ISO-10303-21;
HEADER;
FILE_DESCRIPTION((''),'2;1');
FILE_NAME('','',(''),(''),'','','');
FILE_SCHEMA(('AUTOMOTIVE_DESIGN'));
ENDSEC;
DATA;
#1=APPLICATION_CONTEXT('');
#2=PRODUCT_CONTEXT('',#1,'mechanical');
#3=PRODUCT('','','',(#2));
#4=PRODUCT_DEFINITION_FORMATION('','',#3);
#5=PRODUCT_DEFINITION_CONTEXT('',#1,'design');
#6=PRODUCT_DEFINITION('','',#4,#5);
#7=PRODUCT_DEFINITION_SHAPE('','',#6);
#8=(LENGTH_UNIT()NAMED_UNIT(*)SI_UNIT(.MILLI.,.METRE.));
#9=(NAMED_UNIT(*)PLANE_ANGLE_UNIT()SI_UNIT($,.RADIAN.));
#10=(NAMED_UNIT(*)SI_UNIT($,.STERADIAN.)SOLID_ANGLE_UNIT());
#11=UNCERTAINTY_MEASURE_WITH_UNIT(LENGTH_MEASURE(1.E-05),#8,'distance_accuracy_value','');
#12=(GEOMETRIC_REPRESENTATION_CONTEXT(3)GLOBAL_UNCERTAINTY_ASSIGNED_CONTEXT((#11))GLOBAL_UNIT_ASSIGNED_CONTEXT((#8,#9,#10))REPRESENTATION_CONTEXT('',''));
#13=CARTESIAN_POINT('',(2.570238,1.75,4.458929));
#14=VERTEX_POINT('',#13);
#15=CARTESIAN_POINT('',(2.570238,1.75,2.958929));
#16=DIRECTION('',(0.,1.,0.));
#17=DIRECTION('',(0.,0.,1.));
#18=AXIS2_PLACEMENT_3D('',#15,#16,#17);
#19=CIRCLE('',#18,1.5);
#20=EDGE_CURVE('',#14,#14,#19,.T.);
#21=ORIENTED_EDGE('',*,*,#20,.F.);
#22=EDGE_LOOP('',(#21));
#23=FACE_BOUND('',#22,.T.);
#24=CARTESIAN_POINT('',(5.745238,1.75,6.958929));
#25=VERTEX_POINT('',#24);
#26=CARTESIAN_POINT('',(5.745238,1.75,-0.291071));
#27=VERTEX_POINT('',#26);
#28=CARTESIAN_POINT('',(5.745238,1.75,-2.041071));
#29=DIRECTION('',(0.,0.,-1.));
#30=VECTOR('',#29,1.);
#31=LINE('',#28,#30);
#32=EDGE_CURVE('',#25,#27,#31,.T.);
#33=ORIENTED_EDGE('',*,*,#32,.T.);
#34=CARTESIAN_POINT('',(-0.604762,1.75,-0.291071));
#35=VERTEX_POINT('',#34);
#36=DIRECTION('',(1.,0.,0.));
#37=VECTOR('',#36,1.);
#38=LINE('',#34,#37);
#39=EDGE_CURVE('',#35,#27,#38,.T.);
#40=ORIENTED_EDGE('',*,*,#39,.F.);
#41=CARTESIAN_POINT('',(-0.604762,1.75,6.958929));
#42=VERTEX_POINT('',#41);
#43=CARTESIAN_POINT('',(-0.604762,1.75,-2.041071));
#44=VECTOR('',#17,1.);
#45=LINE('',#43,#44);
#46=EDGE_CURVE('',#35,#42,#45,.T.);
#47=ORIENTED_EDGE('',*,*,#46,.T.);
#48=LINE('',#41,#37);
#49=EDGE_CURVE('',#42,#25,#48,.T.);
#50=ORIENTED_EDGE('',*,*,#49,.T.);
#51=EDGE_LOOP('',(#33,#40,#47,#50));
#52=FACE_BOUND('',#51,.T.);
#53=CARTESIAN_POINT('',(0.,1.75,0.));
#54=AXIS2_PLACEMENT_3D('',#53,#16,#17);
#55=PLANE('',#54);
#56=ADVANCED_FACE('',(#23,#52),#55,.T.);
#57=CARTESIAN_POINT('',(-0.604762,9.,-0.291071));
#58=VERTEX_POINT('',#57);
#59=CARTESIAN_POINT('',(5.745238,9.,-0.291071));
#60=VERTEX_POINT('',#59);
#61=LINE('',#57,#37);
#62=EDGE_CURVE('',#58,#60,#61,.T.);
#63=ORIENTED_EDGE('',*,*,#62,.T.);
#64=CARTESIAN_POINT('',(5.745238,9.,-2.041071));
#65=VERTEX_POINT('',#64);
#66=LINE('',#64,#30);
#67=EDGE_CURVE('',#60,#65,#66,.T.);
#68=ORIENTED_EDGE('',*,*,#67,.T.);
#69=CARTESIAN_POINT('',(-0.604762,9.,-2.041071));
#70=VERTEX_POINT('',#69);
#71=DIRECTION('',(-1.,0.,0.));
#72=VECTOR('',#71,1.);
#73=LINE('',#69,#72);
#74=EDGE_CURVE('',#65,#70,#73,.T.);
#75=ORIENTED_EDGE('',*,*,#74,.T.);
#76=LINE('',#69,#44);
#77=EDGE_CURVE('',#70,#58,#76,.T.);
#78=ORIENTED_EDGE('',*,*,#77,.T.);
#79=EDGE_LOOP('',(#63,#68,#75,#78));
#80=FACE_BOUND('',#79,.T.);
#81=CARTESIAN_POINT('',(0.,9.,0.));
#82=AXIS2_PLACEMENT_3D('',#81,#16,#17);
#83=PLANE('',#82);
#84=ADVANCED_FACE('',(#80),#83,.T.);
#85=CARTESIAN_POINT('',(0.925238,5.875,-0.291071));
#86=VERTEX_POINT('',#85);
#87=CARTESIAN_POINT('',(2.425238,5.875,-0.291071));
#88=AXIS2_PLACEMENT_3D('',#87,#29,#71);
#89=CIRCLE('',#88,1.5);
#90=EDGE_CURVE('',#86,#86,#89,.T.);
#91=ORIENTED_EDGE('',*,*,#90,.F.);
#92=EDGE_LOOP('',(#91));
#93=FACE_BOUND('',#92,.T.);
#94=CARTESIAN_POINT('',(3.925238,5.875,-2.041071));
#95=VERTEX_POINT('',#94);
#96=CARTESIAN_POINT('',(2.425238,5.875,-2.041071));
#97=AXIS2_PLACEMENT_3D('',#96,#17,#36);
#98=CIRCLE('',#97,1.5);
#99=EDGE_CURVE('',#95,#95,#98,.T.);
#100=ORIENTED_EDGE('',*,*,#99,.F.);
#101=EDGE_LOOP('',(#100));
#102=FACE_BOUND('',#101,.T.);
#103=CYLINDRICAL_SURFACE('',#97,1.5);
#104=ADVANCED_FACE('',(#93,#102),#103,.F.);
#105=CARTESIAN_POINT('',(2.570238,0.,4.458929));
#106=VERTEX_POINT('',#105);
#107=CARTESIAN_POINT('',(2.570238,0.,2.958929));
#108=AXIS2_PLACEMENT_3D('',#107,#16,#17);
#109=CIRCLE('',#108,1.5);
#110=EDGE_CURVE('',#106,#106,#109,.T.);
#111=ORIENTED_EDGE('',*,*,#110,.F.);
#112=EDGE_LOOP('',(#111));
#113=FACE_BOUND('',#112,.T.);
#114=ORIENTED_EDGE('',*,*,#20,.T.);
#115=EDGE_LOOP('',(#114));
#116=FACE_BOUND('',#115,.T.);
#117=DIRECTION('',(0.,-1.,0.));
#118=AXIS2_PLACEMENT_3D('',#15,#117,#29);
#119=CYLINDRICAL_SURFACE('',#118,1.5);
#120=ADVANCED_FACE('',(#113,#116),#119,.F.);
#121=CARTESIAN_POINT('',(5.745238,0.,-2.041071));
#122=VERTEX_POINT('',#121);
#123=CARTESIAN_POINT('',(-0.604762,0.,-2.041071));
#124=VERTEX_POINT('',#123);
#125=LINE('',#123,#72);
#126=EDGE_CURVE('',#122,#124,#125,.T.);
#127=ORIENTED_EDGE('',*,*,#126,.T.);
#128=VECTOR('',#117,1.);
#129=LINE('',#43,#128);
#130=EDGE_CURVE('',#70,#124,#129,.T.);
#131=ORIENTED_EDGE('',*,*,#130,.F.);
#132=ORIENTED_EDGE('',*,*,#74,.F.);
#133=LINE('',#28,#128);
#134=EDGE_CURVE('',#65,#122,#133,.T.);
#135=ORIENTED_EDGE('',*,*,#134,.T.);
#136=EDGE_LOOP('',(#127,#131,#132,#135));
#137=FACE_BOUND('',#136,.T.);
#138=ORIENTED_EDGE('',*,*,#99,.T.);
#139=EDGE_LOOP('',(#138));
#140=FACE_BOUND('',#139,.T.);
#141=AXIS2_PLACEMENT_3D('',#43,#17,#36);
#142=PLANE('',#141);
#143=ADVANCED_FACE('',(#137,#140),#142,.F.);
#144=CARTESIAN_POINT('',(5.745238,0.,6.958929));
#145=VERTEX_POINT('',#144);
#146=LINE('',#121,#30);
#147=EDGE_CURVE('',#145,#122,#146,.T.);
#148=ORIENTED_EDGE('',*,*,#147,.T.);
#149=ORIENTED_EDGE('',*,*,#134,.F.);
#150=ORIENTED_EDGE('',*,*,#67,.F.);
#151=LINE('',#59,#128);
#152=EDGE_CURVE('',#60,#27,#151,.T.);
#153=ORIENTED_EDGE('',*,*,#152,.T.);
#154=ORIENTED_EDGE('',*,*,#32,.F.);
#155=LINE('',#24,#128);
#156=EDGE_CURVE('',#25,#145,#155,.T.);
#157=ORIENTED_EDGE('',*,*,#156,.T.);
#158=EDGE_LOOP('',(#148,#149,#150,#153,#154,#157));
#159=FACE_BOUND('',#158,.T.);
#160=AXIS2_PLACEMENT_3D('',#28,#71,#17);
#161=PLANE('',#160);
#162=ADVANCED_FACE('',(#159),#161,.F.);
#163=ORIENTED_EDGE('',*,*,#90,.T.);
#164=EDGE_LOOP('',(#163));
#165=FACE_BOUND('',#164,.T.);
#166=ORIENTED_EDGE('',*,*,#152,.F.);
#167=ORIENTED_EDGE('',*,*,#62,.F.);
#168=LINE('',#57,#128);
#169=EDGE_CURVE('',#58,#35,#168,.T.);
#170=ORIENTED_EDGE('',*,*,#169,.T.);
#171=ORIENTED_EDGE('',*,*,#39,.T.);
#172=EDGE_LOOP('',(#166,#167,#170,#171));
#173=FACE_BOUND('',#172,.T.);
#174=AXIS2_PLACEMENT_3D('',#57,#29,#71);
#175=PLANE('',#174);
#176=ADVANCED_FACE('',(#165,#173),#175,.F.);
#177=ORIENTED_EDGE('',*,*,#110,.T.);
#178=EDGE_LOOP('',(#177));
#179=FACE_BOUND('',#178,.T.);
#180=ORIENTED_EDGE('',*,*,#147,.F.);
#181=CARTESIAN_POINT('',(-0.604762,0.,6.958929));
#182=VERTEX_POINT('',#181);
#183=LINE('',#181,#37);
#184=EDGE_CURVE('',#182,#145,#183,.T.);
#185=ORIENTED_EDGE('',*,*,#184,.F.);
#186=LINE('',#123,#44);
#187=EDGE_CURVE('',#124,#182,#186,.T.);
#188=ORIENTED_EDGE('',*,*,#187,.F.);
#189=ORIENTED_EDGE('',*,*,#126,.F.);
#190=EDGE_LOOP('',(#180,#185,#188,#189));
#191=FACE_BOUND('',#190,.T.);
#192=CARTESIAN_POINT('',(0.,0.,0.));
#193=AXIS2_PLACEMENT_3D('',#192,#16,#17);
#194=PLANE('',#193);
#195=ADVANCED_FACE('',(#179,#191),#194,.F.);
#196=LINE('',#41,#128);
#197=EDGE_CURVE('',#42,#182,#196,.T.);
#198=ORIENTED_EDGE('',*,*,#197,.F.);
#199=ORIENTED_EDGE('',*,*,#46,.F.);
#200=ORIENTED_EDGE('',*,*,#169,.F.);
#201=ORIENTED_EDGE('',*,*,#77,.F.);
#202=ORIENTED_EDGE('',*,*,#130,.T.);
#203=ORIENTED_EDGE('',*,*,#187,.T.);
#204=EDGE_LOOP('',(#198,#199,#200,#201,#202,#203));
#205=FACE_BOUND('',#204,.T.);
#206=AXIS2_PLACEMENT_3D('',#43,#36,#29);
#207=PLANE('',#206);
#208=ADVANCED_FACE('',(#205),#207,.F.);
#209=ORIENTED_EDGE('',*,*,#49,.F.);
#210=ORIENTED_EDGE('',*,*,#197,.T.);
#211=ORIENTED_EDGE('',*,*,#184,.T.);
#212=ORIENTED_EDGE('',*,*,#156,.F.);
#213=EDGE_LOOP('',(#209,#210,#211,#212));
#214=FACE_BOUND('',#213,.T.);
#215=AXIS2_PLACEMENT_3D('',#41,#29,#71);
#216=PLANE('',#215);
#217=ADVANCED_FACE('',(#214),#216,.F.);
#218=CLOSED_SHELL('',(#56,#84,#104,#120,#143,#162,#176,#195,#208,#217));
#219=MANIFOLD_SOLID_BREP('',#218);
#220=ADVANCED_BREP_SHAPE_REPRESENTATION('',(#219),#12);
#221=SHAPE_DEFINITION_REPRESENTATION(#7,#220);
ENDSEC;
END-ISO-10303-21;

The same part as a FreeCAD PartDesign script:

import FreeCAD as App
import Part
import Sketcher
Q = App.Units.Quantity


def add_polygon(sketch, points):
    """Adds a closed chain of lines whose ends are joined by coincident constraints."""
    first, n = sketch.GeometryCount, len(points)
    for a, b in zip(points, points[1:] + points[:1]):
        sketch.addGeometry(Part.LineSegment(App.Vector(*a, 0), App.Vector(*b, 0)), False)
    for i in range(n):
        sketch.addConstraint(Sketcher.Constraint("Coincident", first + i, 2, first + (i + 1) % n, 1))

doc = App.newDocument("Part")
body = doc.addObject("PartDesign::Body", "Body")

sketch1 = body.newObject("Sketcher::SketchObject", "Sketch")
sketch1.AttachmentSupport = (doc.getObject("XZ_Plane"), [""])
sketch1.MapMode = "FlatFace"
add_polygon(sketch1, [(-0.604762, -2.041071), (-0.604762, 6.958929), (5.745238, 6.958929), (5.745238, -2.041071)])
sketch1.addGeometry(Part.Circle(App.Vector(2.570238, 2.958929, 0), App.Vector(0, 0, 1), 1.5), False)
sketch1.addConstraint(Sketcher.Constraint("Vertical", 0))
sketch1.addConstraint(Sketcher.Constraint("Horizontal", 1))
sketch1.addConstraint(Sketcher.Constraint("Vertical", 2))
sketch1.addConstraint(Sketcher.Constraint("Horizontal", 3))
sketch1.addConstraint(Sketcher.Constraint("Diameter", 4, Q("3 mm")))
sketch1.addConstraint(Sketcher.Constraint("DistanceY", 0, 1, 0, 2, Q("9 mm")))
sketch1.addConstraint(Sketcher.Constraint("DistanceY", 4, 3, 0, 2, Q("4 mm")))
sketch1.addConstraint(Sketcher.Constraint("DistanceX", 1, 1, 1, 2, Q("6.35 mm")))
sketch1.addConstraint(Sketcher.Constraint("DistanceX", 0, 2, 4, 3, Q("3.175 mm")))
sketch1.addConstraint(Sketcher.Constraint("DistanceX", -1, 1, 4, 3, Q("2.570238 mm")))
sketch1.addConstraint(Sketcher.Constraint("DistanceY", -1, 1, 4, 3, Q("2.958929 mm")))
pad1 = body.newObject("PartDesign::Pad", "Pad")
pad1.Profile = sketch1
pad1.Length = 1.75
pad1.Reversed = True

sketch2 = body.newObject("Sketcher::SketchObject", "Sketch001")
sketch2.AttachmentSupport = (doc.getObject("XZ_Plane"), [""])
sketch2.MapMode = "FlatFace"
sketch2.AttachmentOffset = App.Placement(App.Vector(0, 0, -1.75), App.Rotation())
add_polygon(sketch2, [(-0.604762, -2.041071), (-0.604762, -0.291071), (5.745238, -0.291071), (5.745238, -2.041071)])
sketch2.addConstraint(Sketcher.Constraint("Vertical", 0))
sketch2.addConstraint(Sketcher.Constraint("Horizontal", 1))
sketch2.addConstraint(Sketcher.Constraint("Vertical", 2))
sketch2.addConstraint(Sketcher.Constraint("Horizontal", 3))
sketch2.addConstraint(Sketcher.Constraint("DistanceX", 1, 1, 1, 2, Q("6.35 mm")))
sketch2.addConstraint(Sketcher.Constraint("DistanceY", 0, 1, 0, 2, Q("1.75 mm")))
sketch2.addConstraint(Sketcher.Constraint("DistanceX", 0, 2, -1, 1, Q("0.604762 mm")))
sketch2.addConstraint(Sketcher.Constraint("DistanceY", 0, 2, -1, 1, Q("0.291071 mm")))
pad2 = body.newObject("PartDesign::Pad", "Pad001")
pad2.Profile = sketch2
pad2.Length = 7.25
pad2.Reversed = True

sketch3 = body.newObject("Sketcher::SketchObject", "Sketch002")
sketch3.AttachmentSupport = (doc.getObject("XY_Plane"), [""])
sketch3.MapMode = "FlatFace"
sketch3.AttachmentOffset = App.Placement(App.Vector(0, 0, -0.291071), App.Rotation())
sketch3.addGeometry(Part.Circle(App.Vector(2.425238, 5.875, 0), App.Vector(0, 0, 1), 1.5), False)
sketch3.addConstraint(Sketcher.Constraint("Diameter", 0, Q("3 mm")))
sketch3.addConstraint(Sketcher.Constraint("DistanceY", -1, 1, 0, 3, Q("5.875 mm")))
sketch3.addConstraint(Sketcher.Constraint("DistanceX", -1, 1, 0, 3, Q("2.425238 mm")))
pocket1 = body.newObject("PartDesign::Pocket", "Pocket")
pocket1.Profile = sketch3
pocket1.Type = "ThroughAll"
pocket1.Midplane = True

doc.recompute()
